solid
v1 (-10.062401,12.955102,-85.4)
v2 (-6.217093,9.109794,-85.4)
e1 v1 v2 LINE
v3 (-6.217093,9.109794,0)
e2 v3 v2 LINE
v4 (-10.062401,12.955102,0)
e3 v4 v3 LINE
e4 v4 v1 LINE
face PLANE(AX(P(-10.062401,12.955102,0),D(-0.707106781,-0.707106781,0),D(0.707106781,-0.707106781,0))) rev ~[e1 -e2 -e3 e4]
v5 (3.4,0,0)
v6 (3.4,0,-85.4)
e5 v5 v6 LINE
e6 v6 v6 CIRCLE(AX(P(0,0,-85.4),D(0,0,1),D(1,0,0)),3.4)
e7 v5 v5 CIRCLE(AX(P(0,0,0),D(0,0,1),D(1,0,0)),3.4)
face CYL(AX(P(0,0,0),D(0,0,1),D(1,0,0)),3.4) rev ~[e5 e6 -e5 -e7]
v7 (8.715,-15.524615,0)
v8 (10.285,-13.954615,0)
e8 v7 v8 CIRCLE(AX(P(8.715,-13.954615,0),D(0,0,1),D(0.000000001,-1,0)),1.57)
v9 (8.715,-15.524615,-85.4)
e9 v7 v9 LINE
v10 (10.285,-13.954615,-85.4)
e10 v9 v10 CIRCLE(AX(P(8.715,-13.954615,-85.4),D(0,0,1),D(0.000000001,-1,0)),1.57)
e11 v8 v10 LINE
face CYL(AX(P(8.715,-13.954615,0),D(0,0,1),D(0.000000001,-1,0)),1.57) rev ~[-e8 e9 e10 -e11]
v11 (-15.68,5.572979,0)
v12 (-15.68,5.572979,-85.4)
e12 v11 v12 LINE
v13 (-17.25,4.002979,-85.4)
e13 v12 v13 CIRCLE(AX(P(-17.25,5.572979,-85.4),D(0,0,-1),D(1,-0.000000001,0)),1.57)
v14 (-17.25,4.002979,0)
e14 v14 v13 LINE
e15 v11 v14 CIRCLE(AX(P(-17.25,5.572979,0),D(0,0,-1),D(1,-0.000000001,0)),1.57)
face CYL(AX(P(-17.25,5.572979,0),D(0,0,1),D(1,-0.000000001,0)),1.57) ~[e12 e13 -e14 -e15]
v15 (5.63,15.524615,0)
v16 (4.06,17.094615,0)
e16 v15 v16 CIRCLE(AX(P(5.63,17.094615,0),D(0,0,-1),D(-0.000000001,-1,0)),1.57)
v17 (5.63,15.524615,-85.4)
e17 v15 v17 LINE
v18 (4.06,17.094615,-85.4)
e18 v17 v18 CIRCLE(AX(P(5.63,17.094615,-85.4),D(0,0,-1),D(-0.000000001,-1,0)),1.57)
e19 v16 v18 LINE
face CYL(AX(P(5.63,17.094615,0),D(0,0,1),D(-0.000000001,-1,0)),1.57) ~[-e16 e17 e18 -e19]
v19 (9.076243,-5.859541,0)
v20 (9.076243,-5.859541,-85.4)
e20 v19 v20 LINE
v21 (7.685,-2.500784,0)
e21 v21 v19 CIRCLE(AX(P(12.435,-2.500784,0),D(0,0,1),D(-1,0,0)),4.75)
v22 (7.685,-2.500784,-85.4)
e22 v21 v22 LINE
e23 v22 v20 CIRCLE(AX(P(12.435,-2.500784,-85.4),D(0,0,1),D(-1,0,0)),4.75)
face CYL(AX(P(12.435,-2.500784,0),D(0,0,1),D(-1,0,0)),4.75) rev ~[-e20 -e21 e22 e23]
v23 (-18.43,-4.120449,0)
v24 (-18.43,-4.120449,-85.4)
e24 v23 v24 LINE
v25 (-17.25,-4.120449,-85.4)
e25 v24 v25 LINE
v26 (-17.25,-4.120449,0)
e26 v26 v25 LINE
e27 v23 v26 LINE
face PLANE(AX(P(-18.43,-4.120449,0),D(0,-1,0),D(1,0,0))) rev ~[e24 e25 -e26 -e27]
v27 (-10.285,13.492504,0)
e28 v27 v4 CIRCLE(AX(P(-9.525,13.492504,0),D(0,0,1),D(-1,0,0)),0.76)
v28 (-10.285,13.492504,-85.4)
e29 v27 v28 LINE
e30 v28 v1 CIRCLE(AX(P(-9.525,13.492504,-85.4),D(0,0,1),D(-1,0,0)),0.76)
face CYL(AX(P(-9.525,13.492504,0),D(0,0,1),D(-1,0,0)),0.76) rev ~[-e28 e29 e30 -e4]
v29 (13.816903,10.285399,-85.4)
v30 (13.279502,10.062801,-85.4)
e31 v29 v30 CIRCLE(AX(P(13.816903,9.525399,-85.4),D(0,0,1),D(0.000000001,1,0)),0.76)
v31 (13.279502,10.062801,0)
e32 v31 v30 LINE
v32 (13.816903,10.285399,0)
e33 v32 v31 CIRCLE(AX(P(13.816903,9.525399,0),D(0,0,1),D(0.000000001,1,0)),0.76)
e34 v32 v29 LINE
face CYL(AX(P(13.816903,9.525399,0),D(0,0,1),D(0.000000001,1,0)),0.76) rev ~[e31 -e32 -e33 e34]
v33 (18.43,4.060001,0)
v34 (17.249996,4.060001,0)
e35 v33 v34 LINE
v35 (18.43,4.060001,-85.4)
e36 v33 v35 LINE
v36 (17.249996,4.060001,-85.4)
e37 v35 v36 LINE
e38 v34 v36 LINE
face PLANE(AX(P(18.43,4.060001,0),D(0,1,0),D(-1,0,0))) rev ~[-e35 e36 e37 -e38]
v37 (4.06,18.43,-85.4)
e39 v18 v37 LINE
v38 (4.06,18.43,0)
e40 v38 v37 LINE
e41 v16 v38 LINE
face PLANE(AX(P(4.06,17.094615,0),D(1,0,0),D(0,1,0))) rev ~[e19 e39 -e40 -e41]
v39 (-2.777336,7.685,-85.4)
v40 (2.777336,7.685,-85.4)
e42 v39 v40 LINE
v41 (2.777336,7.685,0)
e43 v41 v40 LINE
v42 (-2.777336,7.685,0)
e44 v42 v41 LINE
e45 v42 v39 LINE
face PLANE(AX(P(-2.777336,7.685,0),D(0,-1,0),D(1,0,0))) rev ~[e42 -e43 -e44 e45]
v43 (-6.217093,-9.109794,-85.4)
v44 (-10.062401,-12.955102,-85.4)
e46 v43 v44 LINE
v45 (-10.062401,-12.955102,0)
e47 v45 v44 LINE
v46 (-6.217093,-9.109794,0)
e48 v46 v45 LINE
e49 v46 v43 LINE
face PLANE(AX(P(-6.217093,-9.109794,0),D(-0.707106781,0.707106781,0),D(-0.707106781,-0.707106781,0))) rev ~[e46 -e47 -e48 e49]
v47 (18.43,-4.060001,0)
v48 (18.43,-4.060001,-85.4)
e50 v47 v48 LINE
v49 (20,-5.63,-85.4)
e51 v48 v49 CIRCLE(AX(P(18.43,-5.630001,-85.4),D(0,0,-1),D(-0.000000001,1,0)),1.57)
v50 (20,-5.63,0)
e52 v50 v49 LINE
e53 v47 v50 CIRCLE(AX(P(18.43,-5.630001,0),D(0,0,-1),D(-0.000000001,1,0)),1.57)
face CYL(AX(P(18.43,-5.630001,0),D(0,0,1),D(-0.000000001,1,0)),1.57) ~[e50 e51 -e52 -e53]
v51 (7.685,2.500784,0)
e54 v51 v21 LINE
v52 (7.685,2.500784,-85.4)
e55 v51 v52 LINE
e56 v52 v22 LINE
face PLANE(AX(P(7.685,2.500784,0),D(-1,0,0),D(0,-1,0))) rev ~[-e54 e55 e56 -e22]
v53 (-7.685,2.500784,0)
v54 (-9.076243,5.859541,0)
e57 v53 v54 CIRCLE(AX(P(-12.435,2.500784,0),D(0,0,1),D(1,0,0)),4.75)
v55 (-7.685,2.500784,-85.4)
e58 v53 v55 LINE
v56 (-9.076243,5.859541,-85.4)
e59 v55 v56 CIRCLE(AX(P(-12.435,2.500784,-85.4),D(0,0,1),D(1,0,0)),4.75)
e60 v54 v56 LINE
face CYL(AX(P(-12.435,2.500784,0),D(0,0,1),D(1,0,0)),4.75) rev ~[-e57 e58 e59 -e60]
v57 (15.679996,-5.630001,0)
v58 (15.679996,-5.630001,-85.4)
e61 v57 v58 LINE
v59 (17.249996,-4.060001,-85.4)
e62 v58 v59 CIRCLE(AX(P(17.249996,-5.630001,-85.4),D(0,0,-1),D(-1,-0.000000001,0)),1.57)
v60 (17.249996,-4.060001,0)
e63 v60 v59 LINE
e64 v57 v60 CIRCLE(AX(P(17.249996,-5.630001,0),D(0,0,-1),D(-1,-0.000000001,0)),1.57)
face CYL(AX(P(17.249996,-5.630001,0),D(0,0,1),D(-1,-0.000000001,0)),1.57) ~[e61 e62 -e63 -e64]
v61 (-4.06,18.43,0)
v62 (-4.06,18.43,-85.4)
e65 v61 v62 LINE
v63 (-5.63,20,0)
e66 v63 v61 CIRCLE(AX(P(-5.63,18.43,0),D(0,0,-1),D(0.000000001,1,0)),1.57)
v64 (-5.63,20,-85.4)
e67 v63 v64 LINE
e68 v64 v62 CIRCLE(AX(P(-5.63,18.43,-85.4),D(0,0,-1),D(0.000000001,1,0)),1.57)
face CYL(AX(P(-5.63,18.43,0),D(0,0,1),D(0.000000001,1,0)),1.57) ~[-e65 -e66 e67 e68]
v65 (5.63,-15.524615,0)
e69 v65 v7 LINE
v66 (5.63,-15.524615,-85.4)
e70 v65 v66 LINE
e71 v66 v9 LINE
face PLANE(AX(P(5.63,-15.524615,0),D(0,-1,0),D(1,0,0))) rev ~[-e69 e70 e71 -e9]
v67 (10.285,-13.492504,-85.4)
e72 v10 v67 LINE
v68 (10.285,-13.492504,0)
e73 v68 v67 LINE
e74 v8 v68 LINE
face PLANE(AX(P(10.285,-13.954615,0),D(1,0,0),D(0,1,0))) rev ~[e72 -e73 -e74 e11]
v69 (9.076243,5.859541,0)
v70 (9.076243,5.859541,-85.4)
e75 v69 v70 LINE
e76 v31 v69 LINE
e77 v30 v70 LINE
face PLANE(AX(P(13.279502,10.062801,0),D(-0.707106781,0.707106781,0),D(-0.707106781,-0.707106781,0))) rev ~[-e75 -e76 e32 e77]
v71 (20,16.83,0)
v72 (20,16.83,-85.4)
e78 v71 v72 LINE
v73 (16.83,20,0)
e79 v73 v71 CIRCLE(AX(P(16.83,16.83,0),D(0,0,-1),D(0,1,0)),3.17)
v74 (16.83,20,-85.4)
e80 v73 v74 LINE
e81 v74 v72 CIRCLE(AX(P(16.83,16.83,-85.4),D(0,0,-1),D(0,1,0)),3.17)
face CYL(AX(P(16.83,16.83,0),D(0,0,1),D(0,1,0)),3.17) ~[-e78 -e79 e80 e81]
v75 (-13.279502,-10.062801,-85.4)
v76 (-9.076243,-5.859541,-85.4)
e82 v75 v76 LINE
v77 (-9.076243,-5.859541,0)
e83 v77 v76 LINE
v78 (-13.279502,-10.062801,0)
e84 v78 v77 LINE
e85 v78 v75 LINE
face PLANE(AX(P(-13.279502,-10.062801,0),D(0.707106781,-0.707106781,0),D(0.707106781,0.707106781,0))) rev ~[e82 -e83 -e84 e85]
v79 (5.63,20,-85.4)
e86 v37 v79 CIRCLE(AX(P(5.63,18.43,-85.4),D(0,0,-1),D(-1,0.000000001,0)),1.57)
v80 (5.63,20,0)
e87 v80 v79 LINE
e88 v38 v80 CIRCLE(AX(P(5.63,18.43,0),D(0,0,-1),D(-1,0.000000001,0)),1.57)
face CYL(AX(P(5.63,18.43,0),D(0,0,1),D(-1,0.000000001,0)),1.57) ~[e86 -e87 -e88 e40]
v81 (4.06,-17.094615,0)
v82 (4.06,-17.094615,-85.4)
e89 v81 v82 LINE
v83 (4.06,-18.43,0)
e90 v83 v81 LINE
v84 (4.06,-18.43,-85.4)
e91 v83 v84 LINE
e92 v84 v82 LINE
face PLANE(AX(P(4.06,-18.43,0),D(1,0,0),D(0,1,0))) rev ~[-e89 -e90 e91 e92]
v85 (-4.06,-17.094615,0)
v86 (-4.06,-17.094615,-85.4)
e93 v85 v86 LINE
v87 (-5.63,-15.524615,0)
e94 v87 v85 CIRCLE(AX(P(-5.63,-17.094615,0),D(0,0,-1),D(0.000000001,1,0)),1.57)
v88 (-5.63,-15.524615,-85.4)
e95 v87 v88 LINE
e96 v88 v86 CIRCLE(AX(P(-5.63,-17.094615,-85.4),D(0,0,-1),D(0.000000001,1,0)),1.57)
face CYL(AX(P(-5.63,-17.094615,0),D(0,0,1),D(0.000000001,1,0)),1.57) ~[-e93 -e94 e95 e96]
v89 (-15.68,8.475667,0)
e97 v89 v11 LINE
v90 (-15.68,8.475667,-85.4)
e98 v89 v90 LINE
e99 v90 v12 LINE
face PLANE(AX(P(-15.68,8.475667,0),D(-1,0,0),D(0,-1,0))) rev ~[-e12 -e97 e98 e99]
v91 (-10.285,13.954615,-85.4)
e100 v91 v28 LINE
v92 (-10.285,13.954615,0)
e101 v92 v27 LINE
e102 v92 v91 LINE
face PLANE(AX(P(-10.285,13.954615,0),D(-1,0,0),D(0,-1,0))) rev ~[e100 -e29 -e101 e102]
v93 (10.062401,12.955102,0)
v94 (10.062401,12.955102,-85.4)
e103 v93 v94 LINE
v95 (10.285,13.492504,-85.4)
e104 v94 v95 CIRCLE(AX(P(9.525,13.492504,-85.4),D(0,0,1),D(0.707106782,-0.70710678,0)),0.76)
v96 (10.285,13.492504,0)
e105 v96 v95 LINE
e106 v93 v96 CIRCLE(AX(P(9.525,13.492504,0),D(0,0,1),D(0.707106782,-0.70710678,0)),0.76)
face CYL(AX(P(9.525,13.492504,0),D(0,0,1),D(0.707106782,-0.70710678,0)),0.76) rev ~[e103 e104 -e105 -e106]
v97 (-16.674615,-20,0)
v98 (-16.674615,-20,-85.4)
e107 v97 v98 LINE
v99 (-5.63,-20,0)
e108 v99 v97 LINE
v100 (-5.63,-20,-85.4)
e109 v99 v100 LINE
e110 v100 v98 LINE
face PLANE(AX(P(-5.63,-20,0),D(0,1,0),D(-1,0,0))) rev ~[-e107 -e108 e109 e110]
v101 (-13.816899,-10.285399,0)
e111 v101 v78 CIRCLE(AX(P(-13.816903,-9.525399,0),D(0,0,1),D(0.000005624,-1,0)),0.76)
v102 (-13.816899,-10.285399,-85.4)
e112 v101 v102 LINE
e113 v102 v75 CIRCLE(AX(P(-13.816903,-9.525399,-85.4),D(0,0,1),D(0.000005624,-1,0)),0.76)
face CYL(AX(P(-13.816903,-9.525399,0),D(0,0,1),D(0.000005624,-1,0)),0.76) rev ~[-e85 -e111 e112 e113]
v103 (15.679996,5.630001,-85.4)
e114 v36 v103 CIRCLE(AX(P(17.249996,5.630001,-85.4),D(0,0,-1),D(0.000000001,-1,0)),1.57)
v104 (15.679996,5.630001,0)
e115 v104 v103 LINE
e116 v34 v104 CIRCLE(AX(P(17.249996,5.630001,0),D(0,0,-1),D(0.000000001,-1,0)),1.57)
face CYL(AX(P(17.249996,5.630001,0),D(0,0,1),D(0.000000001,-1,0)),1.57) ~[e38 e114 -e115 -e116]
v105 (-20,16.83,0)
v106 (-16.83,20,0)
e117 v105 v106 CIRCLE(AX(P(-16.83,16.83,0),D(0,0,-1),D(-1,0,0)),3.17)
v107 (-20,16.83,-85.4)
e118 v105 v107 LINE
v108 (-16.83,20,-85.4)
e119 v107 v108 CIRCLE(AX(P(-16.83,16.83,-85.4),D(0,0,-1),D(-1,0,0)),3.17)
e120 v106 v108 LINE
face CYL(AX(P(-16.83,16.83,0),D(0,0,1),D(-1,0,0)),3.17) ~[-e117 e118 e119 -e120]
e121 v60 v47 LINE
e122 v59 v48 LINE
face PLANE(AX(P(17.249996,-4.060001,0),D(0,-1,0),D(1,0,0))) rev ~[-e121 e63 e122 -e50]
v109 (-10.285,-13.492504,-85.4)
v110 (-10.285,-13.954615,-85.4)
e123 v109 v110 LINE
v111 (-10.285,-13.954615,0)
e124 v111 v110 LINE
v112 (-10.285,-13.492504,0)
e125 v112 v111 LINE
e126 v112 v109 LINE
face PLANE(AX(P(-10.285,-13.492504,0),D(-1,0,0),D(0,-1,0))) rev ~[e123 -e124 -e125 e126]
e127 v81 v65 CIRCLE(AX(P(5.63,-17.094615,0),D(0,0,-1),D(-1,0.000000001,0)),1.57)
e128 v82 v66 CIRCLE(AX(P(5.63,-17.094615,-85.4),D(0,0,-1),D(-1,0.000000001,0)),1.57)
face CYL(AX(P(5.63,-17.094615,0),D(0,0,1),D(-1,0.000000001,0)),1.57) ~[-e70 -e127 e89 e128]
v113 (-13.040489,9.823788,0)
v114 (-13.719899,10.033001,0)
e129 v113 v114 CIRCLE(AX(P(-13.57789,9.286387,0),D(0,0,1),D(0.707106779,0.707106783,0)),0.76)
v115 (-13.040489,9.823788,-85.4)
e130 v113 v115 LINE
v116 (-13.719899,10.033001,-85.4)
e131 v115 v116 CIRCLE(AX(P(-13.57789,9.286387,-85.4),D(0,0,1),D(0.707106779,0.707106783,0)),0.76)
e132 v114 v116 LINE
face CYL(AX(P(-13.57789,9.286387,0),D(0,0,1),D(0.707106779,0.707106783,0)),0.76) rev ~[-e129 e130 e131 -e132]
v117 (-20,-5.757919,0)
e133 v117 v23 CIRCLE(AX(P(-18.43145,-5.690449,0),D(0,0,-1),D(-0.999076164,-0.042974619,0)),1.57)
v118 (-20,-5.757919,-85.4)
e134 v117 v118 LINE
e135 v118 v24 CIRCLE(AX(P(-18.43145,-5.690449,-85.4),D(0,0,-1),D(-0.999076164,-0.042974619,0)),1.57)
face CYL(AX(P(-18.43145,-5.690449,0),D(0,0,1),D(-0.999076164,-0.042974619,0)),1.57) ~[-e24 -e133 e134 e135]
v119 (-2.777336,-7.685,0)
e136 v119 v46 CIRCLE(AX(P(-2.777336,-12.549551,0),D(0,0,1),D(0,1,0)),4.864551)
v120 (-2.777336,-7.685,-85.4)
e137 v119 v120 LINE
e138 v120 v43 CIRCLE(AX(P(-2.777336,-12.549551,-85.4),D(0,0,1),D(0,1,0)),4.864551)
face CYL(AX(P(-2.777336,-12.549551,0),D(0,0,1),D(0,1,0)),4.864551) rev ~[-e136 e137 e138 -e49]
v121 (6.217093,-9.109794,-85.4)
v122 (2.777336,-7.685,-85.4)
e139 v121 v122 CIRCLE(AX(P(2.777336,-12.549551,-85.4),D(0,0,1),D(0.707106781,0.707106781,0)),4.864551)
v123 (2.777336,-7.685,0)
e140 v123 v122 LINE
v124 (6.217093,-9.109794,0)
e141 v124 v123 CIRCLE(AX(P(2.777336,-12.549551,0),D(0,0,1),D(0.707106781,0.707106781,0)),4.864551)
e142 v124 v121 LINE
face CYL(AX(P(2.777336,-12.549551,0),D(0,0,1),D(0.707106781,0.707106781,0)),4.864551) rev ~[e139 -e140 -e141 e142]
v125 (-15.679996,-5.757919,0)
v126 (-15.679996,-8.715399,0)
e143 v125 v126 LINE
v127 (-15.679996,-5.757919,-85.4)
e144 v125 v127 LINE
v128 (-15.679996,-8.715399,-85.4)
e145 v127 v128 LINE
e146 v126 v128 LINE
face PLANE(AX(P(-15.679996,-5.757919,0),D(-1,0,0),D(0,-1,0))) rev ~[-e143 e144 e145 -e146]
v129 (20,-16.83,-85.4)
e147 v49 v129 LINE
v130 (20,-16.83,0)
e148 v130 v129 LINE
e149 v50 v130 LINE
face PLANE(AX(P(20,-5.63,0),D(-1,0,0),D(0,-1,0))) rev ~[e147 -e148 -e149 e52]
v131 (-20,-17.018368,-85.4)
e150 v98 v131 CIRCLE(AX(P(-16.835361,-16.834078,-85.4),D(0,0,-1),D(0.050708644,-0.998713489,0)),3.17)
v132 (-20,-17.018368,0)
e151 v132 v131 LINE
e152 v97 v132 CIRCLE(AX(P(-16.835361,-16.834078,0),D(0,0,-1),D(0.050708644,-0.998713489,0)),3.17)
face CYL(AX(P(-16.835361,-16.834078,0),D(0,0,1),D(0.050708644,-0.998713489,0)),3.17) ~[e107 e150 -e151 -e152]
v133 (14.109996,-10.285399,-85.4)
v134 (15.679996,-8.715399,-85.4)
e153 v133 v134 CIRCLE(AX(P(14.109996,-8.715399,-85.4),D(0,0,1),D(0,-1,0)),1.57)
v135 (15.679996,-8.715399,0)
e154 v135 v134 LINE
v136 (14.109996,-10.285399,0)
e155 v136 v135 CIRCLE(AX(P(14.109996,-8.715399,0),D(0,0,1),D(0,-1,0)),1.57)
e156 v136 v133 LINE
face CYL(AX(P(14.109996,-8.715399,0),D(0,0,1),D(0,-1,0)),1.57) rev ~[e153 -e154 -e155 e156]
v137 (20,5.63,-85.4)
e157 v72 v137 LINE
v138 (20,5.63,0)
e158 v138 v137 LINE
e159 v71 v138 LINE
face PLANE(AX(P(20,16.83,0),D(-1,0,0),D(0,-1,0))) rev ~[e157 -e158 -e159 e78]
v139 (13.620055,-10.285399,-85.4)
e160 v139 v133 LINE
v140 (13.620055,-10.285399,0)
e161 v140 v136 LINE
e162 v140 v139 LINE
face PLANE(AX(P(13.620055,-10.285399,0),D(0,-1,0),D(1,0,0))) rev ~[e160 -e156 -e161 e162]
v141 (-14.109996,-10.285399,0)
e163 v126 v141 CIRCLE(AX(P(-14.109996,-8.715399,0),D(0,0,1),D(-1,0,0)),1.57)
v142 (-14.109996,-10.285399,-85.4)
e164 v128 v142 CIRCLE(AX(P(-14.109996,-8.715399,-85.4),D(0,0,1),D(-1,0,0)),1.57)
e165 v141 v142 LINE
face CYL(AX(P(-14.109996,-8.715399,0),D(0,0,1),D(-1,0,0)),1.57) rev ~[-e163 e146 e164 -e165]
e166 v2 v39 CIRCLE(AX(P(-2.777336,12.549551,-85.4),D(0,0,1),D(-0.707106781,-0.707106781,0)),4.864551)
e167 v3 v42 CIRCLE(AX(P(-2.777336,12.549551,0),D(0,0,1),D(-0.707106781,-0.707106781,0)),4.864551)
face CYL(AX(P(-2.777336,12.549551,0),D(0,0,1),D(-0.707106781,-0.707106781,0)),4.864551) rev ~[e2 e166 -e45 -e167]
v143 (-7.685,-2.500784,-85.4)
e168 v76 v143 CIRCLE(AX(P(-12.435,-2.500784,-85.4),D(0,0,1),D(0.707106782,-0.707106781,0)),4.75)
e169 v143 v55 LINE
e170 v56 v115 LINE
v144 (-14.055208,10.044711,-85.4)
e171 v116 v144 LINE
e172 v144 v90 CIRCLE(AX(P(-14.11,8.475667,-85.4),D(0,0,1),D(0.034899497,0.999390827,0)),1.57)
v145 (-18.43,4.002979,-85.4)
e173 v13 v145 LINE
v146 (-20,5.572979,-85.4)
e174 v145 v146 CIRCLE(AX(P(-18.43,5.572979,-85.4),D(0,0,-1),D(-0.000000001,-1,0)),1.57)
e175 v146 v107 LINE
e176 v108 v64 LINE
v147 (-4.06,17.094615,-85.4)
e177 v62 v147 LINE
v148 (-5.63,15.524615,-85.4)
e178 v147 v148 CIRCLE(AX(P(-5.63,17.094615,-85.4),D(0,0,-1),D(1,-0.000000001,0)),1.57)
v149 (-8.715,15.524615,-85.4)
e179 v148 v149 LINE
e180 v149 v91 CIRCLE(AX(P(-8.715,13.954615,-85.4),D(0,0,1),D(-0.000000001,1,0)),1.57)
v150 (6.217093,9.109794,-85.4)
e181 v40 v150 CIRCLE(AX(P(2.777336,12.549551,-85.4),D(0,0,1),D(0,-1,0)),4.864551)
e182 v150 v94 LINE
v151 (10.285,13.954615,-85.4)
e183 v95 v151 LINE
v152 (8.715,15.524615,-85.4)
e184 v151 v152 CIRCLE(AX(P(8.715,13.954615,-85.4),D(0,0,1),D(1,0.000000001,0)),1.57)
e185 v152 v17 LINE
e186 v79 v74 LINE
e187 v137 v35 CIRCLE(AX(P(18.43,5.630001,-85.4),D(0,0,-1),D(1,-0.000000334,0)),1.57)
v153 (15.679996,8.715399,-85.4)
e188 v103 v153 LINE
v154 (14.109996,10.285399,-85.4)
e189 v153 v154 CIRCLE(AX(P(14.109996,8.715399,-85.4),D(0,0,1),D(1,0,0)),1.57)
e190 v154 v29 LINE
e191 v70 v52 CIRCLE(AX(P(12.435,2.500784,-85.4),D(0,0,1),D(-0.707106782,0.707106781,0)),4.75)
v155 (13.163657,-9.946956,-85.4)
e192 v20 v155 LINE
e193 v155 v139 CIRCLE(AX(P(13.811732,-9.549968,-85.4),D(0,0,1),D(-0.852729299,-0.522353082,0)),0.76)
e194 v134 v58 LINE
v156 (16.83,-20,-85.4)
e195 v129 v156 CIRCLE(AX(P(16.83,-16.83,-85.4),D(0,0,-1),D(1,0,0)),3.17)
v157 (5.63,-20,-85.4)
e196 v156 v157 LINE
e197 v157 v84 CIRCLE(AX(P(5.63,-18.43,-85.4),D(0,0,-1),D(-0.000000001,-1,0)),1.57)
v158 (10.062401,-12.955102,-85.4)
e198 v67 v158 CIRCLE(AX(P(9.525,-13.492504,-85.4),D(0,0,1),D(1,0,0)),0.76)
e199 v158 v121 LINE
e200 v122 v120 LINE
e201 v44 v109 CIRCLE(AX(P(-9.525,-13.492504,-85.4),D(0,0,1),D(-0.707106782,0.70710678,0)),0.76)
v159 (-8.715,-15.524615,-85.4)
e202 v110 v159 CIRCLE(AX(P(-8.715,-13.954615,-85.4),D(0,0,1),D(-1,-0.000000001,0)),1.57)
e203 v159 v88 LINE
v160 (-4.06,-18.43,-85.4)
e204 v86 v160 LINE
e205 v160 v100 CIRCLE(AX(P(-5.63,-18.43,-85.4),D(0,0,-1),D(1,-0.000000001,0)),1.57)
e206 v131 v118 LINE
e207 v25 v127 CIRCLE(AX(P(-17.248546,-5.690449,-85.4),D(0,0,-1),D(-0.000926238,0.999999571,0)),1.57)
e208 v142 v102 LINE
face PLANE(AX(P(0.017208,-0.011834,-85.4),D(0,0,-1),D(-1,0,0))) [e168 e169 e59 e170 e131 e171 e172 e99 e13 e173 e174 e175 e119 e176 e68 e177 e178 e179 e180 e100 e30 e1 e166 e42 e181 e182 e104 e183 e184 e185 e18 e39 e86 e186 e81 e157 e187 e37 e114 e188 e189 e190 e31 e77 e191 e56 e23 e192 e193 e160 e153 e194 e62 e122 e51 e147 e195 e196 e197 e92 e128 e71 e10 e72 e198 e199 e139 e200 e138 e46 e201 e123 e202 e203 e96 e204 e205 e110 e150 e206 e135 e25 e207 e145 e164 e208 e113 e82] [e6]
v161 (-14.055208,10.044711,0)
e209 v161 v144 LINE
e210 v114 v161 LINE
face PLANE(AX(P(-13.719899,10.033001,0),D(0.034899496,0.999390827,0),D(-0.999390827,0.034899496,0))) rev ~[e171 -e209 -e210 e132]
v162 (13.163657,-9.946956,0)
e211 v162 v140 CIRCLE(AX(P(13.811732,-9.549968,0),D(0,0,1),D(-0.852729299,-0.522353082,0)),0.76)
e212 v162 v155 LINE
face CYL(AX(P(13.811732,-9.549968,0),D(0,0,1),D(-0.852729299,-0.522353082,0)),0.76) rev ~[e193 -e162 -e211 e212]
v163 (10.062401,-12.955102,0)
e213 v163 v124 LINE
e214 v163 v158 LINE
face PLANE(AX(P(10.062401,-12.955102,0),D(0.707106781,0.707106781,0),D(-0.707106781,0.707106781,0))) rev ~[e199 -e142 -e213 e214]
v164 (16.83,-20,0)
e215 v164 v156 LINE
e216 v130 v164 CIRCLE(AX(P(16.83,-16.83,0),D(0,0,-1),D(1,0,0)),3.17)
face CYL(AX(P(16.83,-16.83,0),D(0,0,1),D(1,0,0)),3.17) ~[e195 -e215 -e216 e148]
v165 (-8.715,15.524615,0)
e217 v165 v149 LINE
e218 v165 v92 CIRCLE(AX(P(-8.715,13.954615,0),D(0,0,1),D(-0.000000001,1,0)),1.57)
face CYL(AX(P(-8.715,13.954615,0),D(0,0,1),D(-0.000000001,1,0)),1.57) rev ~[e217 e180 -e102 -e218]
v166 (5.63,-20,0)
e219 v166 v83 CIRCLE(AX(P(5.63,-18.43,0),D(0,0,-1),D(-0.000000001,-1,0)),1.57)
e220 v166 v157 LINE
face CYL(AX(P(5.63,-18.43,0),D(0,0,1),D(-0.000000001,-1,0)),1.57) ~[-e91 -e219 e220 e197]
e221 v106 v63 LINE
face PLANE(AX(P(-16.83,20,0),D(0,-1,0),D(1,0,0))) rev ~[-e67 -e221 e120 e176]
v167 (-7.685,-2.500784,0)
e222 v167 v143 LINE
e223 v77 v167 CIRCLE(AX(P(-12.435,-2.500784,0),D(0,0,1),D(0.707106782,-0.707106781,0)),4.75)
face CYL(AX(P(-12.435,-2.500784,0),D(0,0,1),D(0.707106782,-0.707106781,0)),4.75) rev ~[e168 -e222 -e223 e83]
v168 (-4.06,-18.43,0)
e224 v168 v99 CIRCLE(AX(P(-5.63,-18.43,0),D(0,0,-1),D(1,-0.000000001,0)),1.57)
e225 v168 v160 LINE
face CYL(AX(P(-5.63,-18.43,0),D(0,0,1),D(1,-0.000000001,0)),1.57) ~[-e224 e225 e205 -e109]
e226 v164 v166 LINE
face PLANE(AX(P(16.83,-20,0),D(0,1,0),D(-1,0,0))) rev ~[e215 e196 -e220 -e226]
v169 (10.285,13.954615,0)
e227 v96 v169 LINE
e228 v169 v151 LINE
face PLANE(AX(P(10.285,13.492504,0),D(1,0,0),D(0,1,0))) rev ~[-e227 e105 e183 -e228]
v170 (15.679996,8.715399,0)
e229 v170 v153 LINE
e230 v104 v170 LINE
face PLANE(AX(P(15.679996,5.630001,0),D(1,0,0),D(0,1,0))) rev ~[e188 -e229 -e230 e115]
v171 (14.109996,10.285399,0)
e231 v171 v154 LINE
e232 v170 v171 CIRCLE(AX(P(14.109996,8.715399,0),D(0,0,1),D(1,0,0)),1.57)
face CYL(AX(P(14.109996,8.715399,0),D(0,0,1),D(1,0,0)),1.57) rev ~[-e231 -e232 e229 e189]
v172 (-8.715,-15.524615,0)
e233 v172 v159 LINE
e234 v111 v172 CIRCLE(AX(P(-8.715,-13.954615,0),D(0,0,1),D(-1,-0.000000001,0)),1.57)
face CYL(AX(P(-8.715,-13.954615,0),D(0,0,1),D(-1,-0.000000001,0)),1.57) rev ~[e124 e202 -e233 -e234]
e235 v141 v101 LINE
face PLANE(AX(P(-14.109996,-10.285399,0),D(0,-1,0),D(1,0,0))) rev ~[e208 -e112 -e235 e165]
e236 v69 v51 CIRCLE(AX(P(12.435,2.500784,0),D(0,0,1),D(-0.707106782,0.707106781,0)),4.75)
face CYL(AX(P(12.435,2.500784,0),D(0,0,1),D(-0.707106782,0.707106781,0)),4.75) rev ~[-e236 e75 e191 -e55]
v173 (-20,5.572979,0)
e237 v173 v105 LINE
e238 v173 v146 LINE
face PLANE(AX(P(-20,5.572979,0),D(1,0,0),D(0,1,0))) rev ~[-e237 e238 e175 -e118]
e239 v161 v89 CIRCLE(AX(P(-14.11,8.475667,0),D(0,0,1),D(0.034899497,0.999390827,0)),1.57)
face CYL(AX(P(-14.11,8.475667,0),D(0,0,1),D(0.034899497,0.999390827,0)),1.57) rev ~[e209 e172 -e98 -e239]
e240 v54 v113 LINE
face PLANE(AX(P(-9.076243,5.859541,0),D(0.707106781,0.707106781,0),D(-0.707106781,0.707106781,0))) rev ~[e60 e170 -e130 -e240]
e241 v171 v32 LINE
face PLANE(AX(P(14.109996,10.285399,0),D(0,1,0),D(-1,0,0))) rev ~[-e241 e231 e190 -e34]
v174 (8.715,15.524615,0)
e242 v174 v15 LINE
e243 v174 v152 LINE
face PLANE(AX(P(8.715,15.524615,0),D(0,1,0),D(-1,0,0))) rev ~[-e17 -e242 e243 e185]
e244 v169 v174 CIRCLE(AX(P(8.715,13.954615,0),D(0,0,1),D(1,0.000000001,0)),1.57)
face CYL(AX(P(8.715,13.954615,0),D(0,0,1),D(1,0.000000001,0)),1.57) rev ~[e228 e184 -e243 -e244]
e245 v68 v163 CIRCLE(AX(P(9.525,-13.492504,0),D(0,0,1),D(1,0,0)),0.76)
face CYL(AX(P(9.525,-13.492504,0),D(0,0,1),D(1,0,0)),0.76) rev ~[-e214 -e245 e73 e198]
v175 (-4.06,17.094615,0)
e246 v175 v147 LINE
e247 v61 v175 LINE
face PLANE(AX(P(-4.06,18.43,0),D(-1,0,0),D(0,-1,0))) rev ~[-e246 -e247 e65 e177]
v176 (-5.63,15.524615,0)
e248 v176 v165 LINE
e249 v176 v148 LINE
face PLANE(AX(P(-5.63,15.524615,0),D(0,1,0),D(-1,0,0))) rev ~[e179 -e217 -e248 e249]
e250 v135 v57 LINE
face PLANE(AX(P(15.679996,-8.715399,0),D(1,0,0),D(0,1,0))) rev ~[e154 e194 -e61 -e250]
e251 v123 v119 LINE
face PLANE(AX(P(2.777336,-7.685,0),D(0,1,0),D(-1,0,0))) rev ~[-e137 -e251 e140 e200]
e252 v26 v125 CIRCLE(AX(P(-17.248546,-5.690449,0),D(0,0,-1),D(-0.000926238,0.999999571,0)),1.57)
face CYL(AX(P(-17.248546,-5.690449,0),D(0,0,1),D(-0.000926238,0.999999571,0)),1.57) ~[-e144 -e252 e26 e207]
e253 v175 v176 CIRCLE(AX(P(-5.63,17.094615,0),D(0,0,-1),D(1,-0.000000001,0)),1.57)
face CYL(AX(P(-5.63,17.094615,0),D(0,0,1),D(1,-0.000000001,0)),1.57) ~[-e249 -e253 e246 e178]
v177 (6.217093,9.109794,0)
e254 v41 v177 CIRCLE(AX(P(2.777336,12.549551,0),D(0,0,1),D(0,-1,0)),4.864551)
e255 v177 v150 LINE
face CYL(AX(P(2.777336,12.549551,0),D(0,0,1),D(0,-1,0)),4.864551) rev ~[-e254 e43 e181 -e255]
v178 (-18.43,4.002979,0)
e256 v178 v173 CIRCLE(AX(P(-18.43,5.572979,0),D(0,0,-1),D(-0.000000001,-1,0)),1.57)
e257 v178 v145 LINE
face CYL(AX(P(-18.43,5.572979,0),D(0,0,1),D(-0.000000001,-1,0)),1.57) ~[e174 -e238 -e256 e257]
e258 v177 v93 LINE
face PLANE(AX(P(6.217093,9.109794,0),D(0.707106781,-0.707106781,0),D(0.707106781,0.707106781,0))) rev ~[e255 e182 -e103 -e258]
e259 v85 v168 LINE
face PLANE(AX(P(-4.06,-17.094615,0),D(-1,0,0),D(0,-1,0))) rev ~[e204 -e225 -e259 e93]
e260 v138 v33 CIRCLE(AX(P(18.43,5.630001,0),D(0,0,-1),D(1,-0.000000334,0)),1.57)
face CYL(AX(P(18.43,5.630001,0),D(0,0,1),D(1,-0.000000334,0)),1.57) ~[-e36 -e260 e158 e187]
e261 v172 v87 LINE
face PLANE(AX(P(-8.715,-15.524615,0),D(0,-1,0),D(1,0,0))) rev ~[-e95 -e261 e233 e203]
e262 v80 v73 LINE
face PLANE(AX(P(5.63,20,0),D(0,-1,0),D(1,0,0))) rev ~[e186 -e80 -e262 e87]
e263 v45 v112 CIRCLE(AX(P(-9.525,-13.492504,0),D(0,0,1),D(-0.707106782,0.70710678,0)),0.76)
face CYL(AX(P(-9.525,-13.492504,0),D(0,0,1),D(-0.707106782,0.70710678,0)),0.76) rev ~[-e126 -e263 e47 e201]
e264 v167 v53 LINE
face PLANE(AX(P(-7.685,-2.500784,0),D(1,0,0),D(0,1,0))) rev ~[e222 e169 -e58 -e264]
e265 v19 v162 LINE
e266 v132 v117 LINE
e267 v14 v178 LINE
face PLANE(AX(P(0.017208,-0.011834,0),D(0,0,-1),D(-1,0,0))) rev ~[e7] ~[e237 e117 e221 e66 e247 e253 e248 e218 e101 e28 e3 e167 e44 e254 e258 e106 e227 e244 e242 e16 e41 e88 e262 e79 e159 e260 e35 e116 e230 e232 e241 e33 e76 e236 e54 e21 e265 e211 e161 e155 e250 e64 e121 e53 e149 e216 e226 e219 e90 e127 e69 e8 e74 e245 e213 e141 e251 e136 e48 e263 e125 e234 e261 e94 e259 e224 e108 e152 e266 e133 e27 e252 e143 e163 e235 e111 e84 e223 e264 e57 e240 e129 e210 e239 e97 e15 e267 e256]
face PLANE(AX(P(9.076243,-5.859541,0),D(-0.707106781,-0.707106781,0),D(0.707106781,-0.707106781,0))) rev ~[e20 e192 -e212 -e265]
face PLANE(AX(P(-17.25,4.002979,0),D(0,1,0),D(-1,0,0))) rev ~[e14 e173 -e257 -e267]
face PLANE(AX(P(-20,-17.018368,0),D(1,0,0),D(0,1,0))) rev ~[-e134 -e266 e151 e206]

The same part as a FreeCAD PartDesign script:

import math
import FreeCAD as App
import Part
import Sketcher
from FreeCAD import Vector
Q = App.Units.Quantity

doc = App.newDocument("Part")
body = doc.addObject("PartDesign::Body", "Body")

# Sketch on XY plane
sketch1 = body.newObject("Sketcher::SketchObject", "Sketch")
sketch1.AttachmentSupport = (doc.getObject("XY_Plane"), [""])
sketch1.MapMode = "FlatFace"
sketch1.addGeometry([
    Part.LineSegment(Vector(-5.63, -15.524615, 0), Vector(-8.715, -15.524615, 0)),  # 0
    Part.ArcOfCircle(Part.Circle(Vector(-8.715, -13.954615, 0), Vector(0, 0, 1), 1.57), math.radians(-180), math.radians(-90)),  # 1
    Part.LineSegment(Vector(-10.285, -13.954615, 0), Vector(-10.285, -13.492504, 0)),  # 2
    Part.ArcOfCircle(Part.Circle(Vector(-9.525, -13.492504, 0), Vector(0, 0, 1), 0.76), math.radians(135), math.radians(180)),  # 3
    Part.LineSegment(Vector(-10.062401, -12.955102, 0), Vector(-6.217093, -9.109794, 0)),  # 4
    Part.ArcOfCircle(Part.Circle(Vector(-2.777336, -12.549551, 0), Vector(0, 0, 1), 4.864551), math.radians(90), math.radians(135)),  # 5
    Part.LineSegment(Vector(-2.777336, -7.685, 0), Vector(2.777336, -7.685, 0)),  # 6
    Part.ArcOfCircle(Part.Circle(Vector(2.777336, -12.549551, 0), Vector(0, 0, 1), 4.864551), math.radians(45), math.radians(90)),  # 7
    Part.LineSegment(Vector(6.217093, -9.109794, 0), Vector(10.062401, -12.955102, 0)),  # 8
    Part.ArcOfCircle(Part.Circle(Vector(9.525, -13.492504, 0), Vector(0, 0, 1), 0.76), math.radians(0), math.radians(45)),  # 9
    Part.LineSegment(Vector(10.285, -13.492504, 0), Vector(10.285, -13.954615, 0)),  # 10
    Part.ArcOfCircle(Part.Circle(Vector(8.715, -13.954615, 0), Vector(0, 0, 1), 1.57), math.radians(-90), math.radians(0)),  # 11
    Part.LineSegment(Vector(8.715, -15.524615, 0), Vector(5.63, -15.524615, 0)),  # 12
    Part.ArcOfCircle(Part.Circle(Vector(5.63, -17.094615, 0), Vector(0, 0, 1), 1.57), math.radians(90), math.radians(180)),  # 13
    Part.LineSegment(Vector(4.06, -17.094615, 0), Vector(4.06, -18.43, 0)),  # 14
    Part.ArcOfCircle(Part.Circle(Vector(5.63, -18.43, 0), Vector(0, 0, 1), 1.57), math.radians(-180), math.radians(-90)),  # 15
    Part.LineSegment(Vector(5.63, -20, 0), Vector(16.83, -20, 0)),  # 16
    Part.ArcOfCircle(Part.Circle(Vector(16.83, -16.83, 0), Vector(0, 0, 1), 3.17), math.radians(-90), math.radians(0)),  # 17
    Part.LineSegment(Vector(20, -16.83, 0), Vector(20, -5.63, 0)),  # 18
    Part.ArcOfCircle(Part.Circle(Vector(18.43, -5.630001, 0), Vector(0, 0, 1), 1.57), math.radians(0.000019), math.radians(90)),  # 19
    Part.LineSegment(Vector(18.43, -4.060001, 0), Vector(17.249996, -4.060001, 0)),  # 20
    Part.ArcOfCircle(Part.Circle(Vector(17.249996, -5.630001, 0), Vector(0, 0, 1), 1.57), math.radians(90), math.radians(180)),  # 21
    Part.LineSegment(Vector(15.679996, -5.630001, 0), Vector(15.679996, -8.715399, 0)),  # 22
    Part.ArcOfCircle(Part.Circle(Vector(14.109996, -8.715399, 0), Vector(0, 0, 1), 1.57), math.radians(-90), math.radians(0)),  # 23
    Part.LineSegment(Vector(14.109996, -10.285399, 0), Vector(13.620055, -10.285399, 0)),  # 24
    Part.ArcOfCircle(Part.Circle(Vector(13.811732, -9.549968, 0), Vector(0, 0, 1), 0.76), math.radians(-148.509776), math.radians(-104.608114)),  # 25
    Part.LineSegment(Vector(13.163657, -9.946956, 0), Vector(9.076243, -5.859541, 0)),  # 26
    Part.ArcOfCircle(Part.Circle(Vector(12.435, -2.500784, 0), Vector(0, 0, 1), 4.75), math.radians(-180), math.radians(-135)),  # 27
    Part.LineSegment(Vector(7.685, -2.500784, 0), Vector(7.685, 2.500784, 0)),  # 28
    Part.ArcOfCircle(Part.Circle(Vector(12.435, 2.500784, 0), Vector(0, 0, 1), 4.75), math.radians(135), math.radians(180)),  # 29
    Part.LineSegment(Vector(9.076243, 5.859541, 0), Vector(13.279502, 10.062801, 0)),  # 30
    Part.ArcOfCircle(Part.Circle(Vector(13.816903, 9.525399, 0), Vector(0, 0, 1), 0.76), math.radians(90), math.radians(135)),  # 31
    Part.LineSegment(Vector(13.816903, 10.285399, 0), Vector(14.109996, 10.285399, 0)),  # 32
    Part.ArcOfCircle(Part.Circle(Vector(14.109996, 8.715399, 0), Vector(0, 0, 1), 1.57), math.radians(0), math.radians(90)),  # 33
    Part.LineSegment(Vector(15.679996, 8.715399, 0), Vector(15.679996, 5.630001, 0)),  # 34
    Part.ArcOfCircle(Part.Circle(Vector(17.249996, 5.630001, 0), Vector(0, 0, 1), 1.57), math.radians(180), math.radians(270)),  # 35
    Part.LineSegment(Vector(17.249996, 4.060001, 0), Vector(18.43, 4.060001, 0)),  # 36
    Part.ArcOfCircle(Part.Circle(Vector(18.43, 5.630001, 0), Vector(0, 0, 1), 1.57), math.radians(-90), math.radians(-0.000019)),  # 37
    Part.LineSegment(Vector(20, 5.63, 0), Vector(20, 16.83, 0)),  # 38
    Part.ArcOfCircle(Part.Circle(Vector(16.83, 16.83, 0), Vector(0, 0, 1), 3.17), math.radians(0), math.radians(90)),  # 39
    Part.LineSegment(Vector(16.83, 20, 0), Vector(5.63, 20, 0)),  # 40
    Part.ArcOfCircle(Part.Circle(Vector(5.63, 18.43, 0), Vector(0, 0, 1), 1.57), math.radians(90), math.radians(180)),  # 41
    Part.LineSegment(Vector(4.06, 18.43, 0), Vector(4.06, 17.094615, 0)),  # 42
    Part.ArcOfCircle(Part.Circle(Vector(5.63, 17.094615, 0), Vector(0, 0, 1), 1.57), math.radians(-180), math.radians(-90)),  # 43
    Part.LineSegment(Vector(5.63, 15.524615, 0), Vector(8.715, 15.524615, 0)),  # 44
    Part.ArcOfCircle(Part.Circle(Vector(8.715, 13.954615, 0), Vector(0, 0, 1), 1.57), math.radians(0), math.radians(90)),  # 45
    Part.LineSegment(Vector(10.285, 13.954615, 0), Vector(10.285, 13.492504, 0)),  # 46
    Part.ArcOfCircle(Part.Circle(Vector(9.525, 13.492504, 0), Vector(0, 0, 1), 0.76), math.radians(-45), math.radians(0)),  # 47
    Part.LineSegment(Vector(10.062401, 12.955102, 0), Vector(6.217093, 9.109794, 0)),  # 48
    Part.ArcOfCircle(Part.Circle(Vector(2.777336, 12.549551, 0), Vector(0, 0, 1), 4.864551), math.radians(-90), math.radians(-45)),  # 49
    Part.LineSegment(Vector(2.777336, 7.685, 0), Vector(-2.777336, 7.685, 0)),  # 50
    Part.ArcOfCircle(Part.Circle(Vector(-2.777336, 12.549551, 0), Vector(0, 0, 1), 4.864551), math.radians(-135), math.radians(-90)),  # 51
    Part.LineSegment(Vector(-6.217093, 9.109794, 0), Vector(-10.062401, 12.955102, 0)),  # 52
    Part.ArcOfCircle(Part.Circle(Vector(-9.525, 13.492504, 0), Vector(0, 0, 1), 0.76), math.radians(180), math.radians(225)),  # 53
    Part.LineSegment(Vector(-10.285, 13.492504, 0), Vector(-10.285, 13.954615, 0)),  # 54
    Part.ArcOfCircle(Part.Circle(Vector(-8.715, 13.954615, 0), Vector(0, 0, 1), 1.57), math.radians(90), math.radians(180)),  # 55
    Part.LineSegment(Vector(-8.715, 15.524615, 0), Vector(-5.63, 15.524615, 0)),  # 56
    Part.ArcOfCircle(Part.Circle(Vector(-5.63, 17.094615, 0), Vector(0, 0, 1), 1.57), math.radians(-90), math.radians(0)),  # 57
    Part.LineSegment(Vector(-4.06, 17.094615, 0), Vector(-4.06, 18.43, 0)),  # 58
    Part.ArcOfCircle(Part.Circle(Vector(-5.63, 18.43, 0), Vector(0, 0, 1), 1.57), math.radians(0), math.radians(90)),  # 59
    Part.LineSegment(Vector(-5.63, 20, 0), Vector(-16.83, 20, 0)),  # 60
    Part.ArcOfCircle(Part.Circle(Vector(-16.83, 16.83, 0), Vector(0, 0, 1), 3.17), math.radians(90), math.radians(180)),  # 61
    Part.LineSegment(Vector(-20, 16.83, 0), Vector(-20, 5.572979, 0)),  # 62
    Part.ArcOfCircle(Part.Circle(Vector(-18.43, 5.572979, 0), Vector(0, 0, 1), 1.57), math.radians(-180), math.radians(-90)),  # 63
    Part.LineSegment(Vector(-18.43, 4.002979, 0), Vector(-17.25, 4.002979, 0)),  # 64
    Part.ArcOfCircle(Part.Circle(Vector(-17.25, 5.572979, 0), Vector(0, 0, 1), 1.57), math.radians(-90), math.radians(0)),  # 65
    Part.LineSegment(Vector(-15.68, 5.572979, 0), Vector(-15.68, 8.475667, 0)),  # 66
    Part.ArcOfCircle(Part.Circle(Vector(-14.11, 8.475667, 0), Vector(0, 0, 1), 1.57), math.radians(88), math.radians(180)),  # 67
    Part.LineSegment(Vector(-14.055208, 10.044711, 0), Vector(-13.719899, 10.033001, 0)),  # 68
    Part.ArcOfCircle(Part.Circle(Vector(-13.57789, 9.286387, 0), Vector(0, 0, 1), 0.76), math.radians(45), math.radians(100.769233)),  # 69
    Part.LineSegment(Vector(-13.040489, 9.823788, 0), Vector(-9.076243, 5.859541, 0)),  # 70
    Part.ArcOfCircle(Part.Circle(Vector(-12.435, 2.500784, 0), Vector(0, 0, 1), 4.75), math.radians(0), math.radians(45)),  # 71
    Part.LineSegment(Vector(-7.685, 2.500784, 0), Vector(-7.685, -2.500784, 0)),  # 72
    Part.ArcOfCircle(Part.Circle(Vector(-12.435, -2.500784, 0), Vector(0, 0, 1), 4.75), math.radians(-45), math.radians(0)),  # 73
    Part.LineSegment(Vector(-9.076243, -5.859541, 0), Vector(-13.279502, -10.062801, 0)),  # 74
    Part.ArcOfCircle(Part.Circle(Vector(-13.816903, -9.525399, 0), Vector(0, 0, 1), 0.76), math.radians(-89.999678), math.radians(-45)),  # 75
    Part.LineSegment(Vector(-13.816899, -10.285399, 0), Vector(-14.109996, -10.285399, 0)),  # 76
    Part.ArcOfCircle(Part.Circle(Vector(-14.109996, -8.715399, 0), Vector(0, 0, 1), 1.57), math.radians(180), math.radians(270)),  # 77
    Part.LineSegment(Vector(-15.679996, -8.715399, 0), Vector(-15.679996, -5.757919, 0)),  # 78
    Part.ArcOfCircle(Part.Circle(Vector(-17.248546, -5.690449, 0), Vector(0, 0, 1), 1.57), math.radians(-2.463042), math.radians(90.05307)),  # 79
    Part.LineSegment(Vector(-17.25, -4.120449, 0), Vector(-18.43, -4.120449, 0)),  # 80
    Part.ArcOfCircle(Part.Circle(Vector(-18.43145, -5.690449, 0), Vector(0, 0, 1), 1.57), math.radians(89.947068), math.radians(182.463023)),  # 81
    Part.LineSegment(Vector(-20, -5.757919, 0), Vector(-20, -17.018368, 0)),  # 82
    Part.ArcOfCircle(Part.Circle(Vector(-16.835361, -16.834078, 0), Vector(0, 0, 1), 3.17), math.radians(-176.667196), math.radians(-87.093362)),  # 83
    Part.LineSegment(Vector(-16.674615, -20, 0), Vector(-5.63, -20, 0)),  # 84
    Part.ArcOfCircle(Part.Circle(Vector(-5.63, -18.43, 0), Vector(0, 0, 1), 1.57), math.radians(-90), math.radians(0)),  # 85
    Part.LineSegment(Vector(-4.06, -18.43, 0), Vector(-4.06, -17.094615, 0)),  # 86
    Part.ArcOfCircle(Part.Circle(Vector(-5.63, -17.094615, 0), Vector(0, 0, 1), 1.57), math.radians(0), math.radians(90)),  # 87
    Part.Circle(Vector(0, 0, 0), Vector(0, 0, 1), 3.4),  # 88
], False)
sketch1.addConstraint([
    Sketcher.Constraint("Tangent", 0, 2, 1, 2),
    Sketcher.Constraint("Tangent", 1, 1, 2, 1),
    Sketcher.Constraint("Tangent", 2, 2, 3, 2),
    Sketcher.Constraint("Tangent", 3, 1, 4, 1),
    Sketcher.Constraint("Tangent", 4, 2, 5, 2),
    Sketcher.Constraint("Tangent", 5, 1, 6, 1),
    Sketcher.Constraint("Tangent", 6, 2, 7, 2),
    Sketcher.Constraint("Tangent", 7, 1, 8, 1),
    Sketcher.Constraint("Tangent", 8, 2, 9, 2),
    Sketcher.Constraint("Tangent", 9, 1, 10, 1),
    Sketcher.Constraint("Tangent", 10, 2, 11, 2),
    Sketcher.Constraint("Tangent", 11, 1, 12, 1),
    Sketcher.Constraint("Tangent", 12, 2, 13, 1),
    Sketcher.Constraint("Tangent", 13, 2, 14, 1),
    Sketcher.Constraint("Tangent", 14, 2, 15, 1),
    Sketcher.Constraint("Tangent", 15, 2, 16, 1),
    Sketcher.Constraint("Tangent", 16, 2, 17, 1),
    Sketcher.Constraint("Tangent", 17, 2, 18, 1),
    Sketcher.Constraint("Tangent", 18, 2, 19, 1),
    Sketcher.Constraint("Tangent", 19, 2, 20, 1),
    Sketcher.Constraint("Tangent", 20, 2, 21, 1),
    Sketcher.Constraint("Tangent", 21, 2, 22, 1),
    Sketcher.Constraint("Tangent", 22, 2, 23, 2),
    Sketcher.Constraint("Tangent", 23, 1, 24, 1),
    Sketcher.Constraint("Coincident", 24, 2, 25, 2),
    Sketcher.Constraint("Coincident", 25, 1, 26, 1),
    Sketcher.Constraint("Tangent", 26, 2, 27, 2),
    Sketcher.Constraint("Tangent", 27, 1, 28, 1),
    Sketcher.Constraint("Tangent", 28, 2, 29, 2),
    Sketcher.Constraint("Tangent", 29, 1, 30, 1),
    Sketcher.Constraint("Tangent", 30, 2, 31, 2),
    Sketcher.Constraint("Tangent", 31, 1, 32, 1),
    Sketcher.Constraint("Tangent", 32, 2, 33, 2),
    Sketcher.Constraint("Tangent", 33, 1, 34, 1),
    Sketcher.Constraint("Tangent", 34, 2, 35, 1),
    Sketcher.Constraint("Tangent", 35, 2, 36, 1),
    Sketcher.Constraint("Tangent", 36, 2, 37, 1),
    Sketcher.Constraint("Tangent", 37, 2, 38, 1),
    Sketcher.Constraint("Tangent", 38, 2, 39, 1),
    Sketcher.Constraint("Tangent", 39, 2, 40, 1),
    Sketcher.Constraint("Tangent", 40, 2, 41, 1),
    Sketcher.Constraint("Tangent", 41, 2, 42, 1),
    Sketcher.Constraint("Tangent", 42, 2, 43, 1),
    Sketcher.Constraint("Tangent", 43, 2, 44, 1),
    Sketcher.Constraint("Tangent", 44, 2, 45, 2),
    Sketcher.Constraint("Tangent", 45, 1, 46, 1),
    Sketcher.Constraint("Tangent", 46, 2, 47, 2),
    Sketcher.Constraint("Tangent", 47, 1, 48, 1),
    Sketcher.Constraint("Tangent", 48, 2, 49, 2),
    Sketcher.Constraint("Tangent", 49, 1, 50, 1),
    Sketcher.Constraint("Tangent", 50, 2, 51, 2),
    Sketcher.Constraint("Tangent", 51, 1, 52, 1),
    Sketcher.Constraint("Tangent", 52, 2, 53, 2),
    Sketcher.Constraint("Tangent", 53, 1, 54, 1),
    Sketcher.Constraint("Tangent", 54, 2, 55, 2),
    Sketcher.Constraint("Tangent", 55, 1, 56, 1),
    Sketcher.Constraint("Tangent", 56, 2, 57, 1),
    Sketcher.Constraint("Tangent", 57, 2, 58, 1),
    Sketcher.Constraint("Tangent", 58, 2, 59, 1),
    Sketcher.Constraint("Tangent", 59, 2, 60, 1),
    Sketcher.Constraint("Tangent", 60, 2, 61, 1),
    Sketcher.Constraint("Tangent", 61, 2, 62, 1),
    Sketcher.Constraint("Tangent", 62, 2, 63, 1),
    Sketcher.Constraint("Tangent", 63, 2, 64, 1),
    Sketcher.Constraint("Tangent", 64, 2, 65, 1),
    Sketcher.Constraint("Tangent", 65, 2, 66, 1),
    Sketcher.Constraint("Tangent", 66, 2, 67, 2),
    Sketcher.Constraint("Tangent", 67, 1, 68, 1),
    Sketcher.Constraint("Coincident", 68, 2, 69, 2),
    Sketcher.Constraint("Tangent", 69, 1, 70, 1),
    Sketcher.Constraint("Tangent", 70, 2, 71, 2),
    Sketcher.Constraint("Tangent", 71, 1, 72, 1),
    Sketcher.Constraint("Tangent", 72, 2, 73, 2),
    Sketcher.Constraint("Tangent", 73, 1, 74, 1),
    Sketcher.Constraint("Tangent", 74, 2, 75, 2),
    Sketcher.Constraint("Coincident", 75, 1, 76, 1),
    Sketcher.Constraint("Tangent", 76, 2, 77, 2),
    Sketcher.Constraint("Tangent", 77, 1, 78, 1),
    Sketcher.Constraint("Coincident", 78, 2, 79, 1),
    Sketcher.Constraint("Coincident", 79, 2, 80, 1),
    Sketcher.Constraint("Coincident", 80, 2, 81, 1),
    Sketcher.Constraint("Coincident", 81, 2, 82, 1),
    Sketcher.Constraint("Coincident", 82, 2, 83, 1),
    Sketcher.Constraint("Coincident", 83, 2, 84, 1),
    Sketcher.Constraint("Tangent", 84, 2, 85, 1),
    Sketcher.Constraint("Tangent", 85, 2, 86, 1),
    Sketcher.Constraint("Tangent", 86, 2, 87, 1),
    Sketcher.Constraint("Tangent", 87, 2, 0, 1),
    Sketcher.Constraint("Horizontal", 0),
    Sketcher.Constraint("Vertical", 2),
    Sketcher.Constraint("Horizontal", 6),
    Sketcher.Constraint("Vertical", 10),
    Sketcher.Constraint("Horizontal", 12),
    Sketcher.Constraint("Vertical", 14),
    Sketcher.Constraint("Horizontal", 16),
    Sketcher.Constraint("Vertical", 18),
    Sketcher.Constraint("Horizontal", 20),
    Sketcher.Constraint("Vertical", 22),
    Sketcher.Constraint("Horizontal", 24),
    Sketcher.Constraint("Vertical", 28),
    Sketcher.Constraint("Horizontal", 32),
    Sketcher.Constraint("Vertical", 34),
    Sketcher.Constraint("Horizontal", 36),
    Sketcher.Constraint("Vertical", 38),
    Sketcher.Constraint("Horizontal", 40),
    Sketcher.Constraint("Vertical", 42),
    Sketcher.Constraint("Horizontal", 44),
    Sketcher.Constraint("Vertical", 46),
    Sketcher.Constraint("Horizontal", 50),
    Sketcher.Constraint("Vertical", 54),
    Sketcher.Constraint("Horizontal", 56),
    Sketcher.Constraint("Vertical", 58),
    Sketcher.Constraint("Horizontal", 60),
    Sketcher.Constraint("Vertical", 62),
    Sketcher.Constraint("Horizontal", 64),
    Sketcher.Constraint("Vertical", 66),
    Sketcher.Constraint("Vertical", 72),
    Sketcher.Constraint("Horizontal", 76),
    Sketcher.Constraint("Vertical", 78),
    Sketcher.Constraint("Horizontal", 80),
    Sketcher.Constraint("Vertical", 82),
    Sketcher.Constraint("Horizontal", 84),
    Sketcher.Constraint("Vertical", 86),
    Sketcher.Constraint("Coincident", 88, 3, -1, 1),
    Sketcher.Constraint("Equal", 5, 7),
    Sketcher.Constraint("Equal", 3, 9),
    Sketcher.Constraint("Equal", 1, 11),
    Sketcher.Constraint("Equal", 11, 13),
    Sketcher.Constraint("Equal", 13, 15),
    Sketcher.Constraint("Equal", 15, 19),
    Sketcher.Constraint("Equal", 19, 21),
    Sketcher.Constraint("Equal", 21, 23),
    Sketcher.Constraint("Equal", 9, 25),
    Sketcher.Constraint("Equal", 27, 29),
    Sketcher.Constraint("Equal", 25, 31),
    Sketcher.Constraint("Equal", 23, 33),
    Sketcher.Constraint("Equal", 33, 35),
    Sketcher.Constraint("Equal", 35, 37),
    Sketcher.Constraint("Equal", 17, 39),
    Sketcher.Constraint("Equal", 37, 41),
    Sketcher.Constraint("Equal", 41, 43),
    Sketcher.Constraint("Equal", 43, 45),
    Sketcher.Constraint("Equal", 31, 47),
    Sketcher.Constraint("Equal", 7, 49),
    Sketcher.Constraint("Equal", 49, 51),
    Sketcher.Constraint("Equal", 47, 53),
    Sketcher.Constraint("Equal", 45, 55),
    Sketcher.Constraint("Equal", 55, 57),
    Sketcher.Constraint("Equal", 57, 59),
    Sketcher.Constraint("Equal", 39, 61),
    Sketcher.Constraint("Equal", 59, 63),
    Sketcher.Constraint("Equal", 63, 65),
    Sketcher.Constraint("Equal", 65, 67),
    Sketcher.Constraint("Equal", 53, 69),
    Sketcher.Constraint("Equal", 29, 71),
    Sketcher.Constraint("Equal", 71, 73),
    Sketcher.Constraint("Equal", 69, 75),
    Sketcher.Constraint("Equal", 67, 77),
    Sketcher.Constraint("Equal", 77, 79),
    Sketcher.Constraint("Equal", 79, 81),
    Sketcher.Constraint("Equal", 61, 83),
    Sketcher.Constraint("Equal", 81, 85),
    Sketcher.Constraint("Equal", 85, 87),
    Sketcher.Constraint("Symmetric", 1, 3, 45, 3, -1, 1),
    Sketcher.Constraint("Symmetric", 5, 3, 49, 3, -1, 1),
    Sketcher.Constraint("Symmetric", 9, 3, 53, 3, -1, 1),
    Sketcher.Constraint("Symmetric", 13, 3, 57, 3, -1, 1),
    Sketcher.Constraint("Symmetric", 17, 3, 61, 3, -1, 1),
    Sketcher.Constraint("Symmetric", 27, 3, 71, 3, -1, 1),
    Sketcher.Constraint("Symmetric", 31, 3, 75, 3, -1, 1),
    Sketcher.Constraint("Symmetric", 41, 3, 85, 3, -1, 1),
    Sketcher.Constraint("Symmetric", 3, 3, 9, 3, -2),
    Sketcher.Constraint("Symmetric", 43, 3, 57, 3, -2),
    Sketcher.Constraint("Symmetric", 39, 3, 61, 3, -2),
    Sketcher.Constraint("Symmetric", 23, 3, 77, 3, -2),
    Sketcher.Constraint("Symmetric", 48, 2, 51, 1, -2),
    Sketcher.Constraint("Symmetric", 29, 1, 70, 2, -2),
    Sketcher.Constraint("Symmetric", 26, 2, 73, 1, -2),
    Sketcher.Constraint("Symmetric", 21, 3, 35, 3, -1),
    Sketcher.Constraint("Perpendicular", 4, 8),
    Sketcher.Constraint("Parallel", 8, 26),
    Sketcher.Constraint("Perpendicular", 26, 30),
    Sketcher.Constraint("Horizontal", 78, 2, 81, 2),
    Sketcher.Constraint("Vertical", 64, 2, 79, 2),
    Sketcher.Constraint("Vertical", 63, 2, 80, 2),
    Sketcher.Constraint("Vertical", 62, 2, 81, 2),
    Sketcher.Constraint("Equal", 60, 18),
    Sketcher.Constraint("Diameter", 88, Q("6.8 mm")),
    Sketcher.Constraint("Angle", 68, Q("-2 deg")),
    Sketcher.Constraint("Radius", 1, Q("1.57 mm")),
    Sketcher.Constraint("Radius", 3, Q("0.76 mm")),
    Sketcher.Constraint("Radius", 17, Q("3.17 mm")),
    Sketcher.Constraint("Radius", 27, Q("4.75 mm")),
    Sketcher.Constraint("DistanceX", 16, 1, 16, 2, Q("11.2 mm")),
    Sketcher.Constraint("DistanceY", 15, 2, -1, 1, Q("20 mm")),
    Sketcher.Constraint("DistanceX", -1, 1, 17, 2, Q("20 mm")),
    Sketcher.Constraint("DistanceX", 64, 1, 64, 2, Q("1.18 mm")),
    Sketcher.Constraint("DistanceX", 0, 2, 0, 1, Q("3.085 mm")),
    Sketcher.Constraint("Radius", 5, Q("4.864551 mm")),
    Sketcher.Constraint("DistanceY", 22, 2, 22, 1, Q("3.085399 mm")),
    Sketcher.Constraint("DistanceX", -1, 1, 27, 3, Q("12.435 mm")),
    Sketcher.Constraint("DistanceY", 5, 1, -1, 1, Q("7.685 mm")),
    Sketcher.Constraint("DistanceY", -1, 1, 68, 2, Q("10.033001 mm")),
    Sketcher.Constraint("DistanceX", 6, 1, 6, 2, Q("5.554671 mm")),
    Sketcher.Constraint("DistanceX", 24, 2, 24, 1, Q("0.489942 mm")),
    Sketcher.Constraint("DistanceY", 2, 1, 2, 2, Q("0.462111 mm")),
    Sketcher.Constraint("DistanceY", 28, 1, 28, 2, Q("5.001569 mm")),
    Sketcher.Constraint("DistanceY", 62, 2, 62, 1, Q("11.257021 mm")),
    Sketcher.Constraint("DistanceY", 78, 1, 78, 2, Q("2.95748 mm")),
    Sketcher.Constraint("DistanceY", 82, 2, 82, 1, Q("11.260449 mm")),
    Sketcher.Constraint("DistanceX", 68, 2, -1, 1, Q("13.719899 mm")),
    Sketcher.Constraint("DistanceX", 75, 1, -1, 1, Q("13.816899 mm")),
    Sketcher.Constraint("DistanceX", 20, 2, 20, 1, Q("1.180004 mm")),
    Sketcher.Constraint("DistanceX", 84, 1, 84, 2, Q("11.044615 mm")),
    Sketcher.Constraint("DistanceX", -1, 1, 25, 3, Q("13.811732 mm")),
    Sketcher.Constraint("DistanceY", 79, 3, -1, 1, Q("5.690449 mm")),
])
pad1 = body.newObject("PartDesign::Pad", "Pad")
pad1.Profile = sketch1
pad1.Length = 85.4
pad1.Reversed = True

doc.recompute()
